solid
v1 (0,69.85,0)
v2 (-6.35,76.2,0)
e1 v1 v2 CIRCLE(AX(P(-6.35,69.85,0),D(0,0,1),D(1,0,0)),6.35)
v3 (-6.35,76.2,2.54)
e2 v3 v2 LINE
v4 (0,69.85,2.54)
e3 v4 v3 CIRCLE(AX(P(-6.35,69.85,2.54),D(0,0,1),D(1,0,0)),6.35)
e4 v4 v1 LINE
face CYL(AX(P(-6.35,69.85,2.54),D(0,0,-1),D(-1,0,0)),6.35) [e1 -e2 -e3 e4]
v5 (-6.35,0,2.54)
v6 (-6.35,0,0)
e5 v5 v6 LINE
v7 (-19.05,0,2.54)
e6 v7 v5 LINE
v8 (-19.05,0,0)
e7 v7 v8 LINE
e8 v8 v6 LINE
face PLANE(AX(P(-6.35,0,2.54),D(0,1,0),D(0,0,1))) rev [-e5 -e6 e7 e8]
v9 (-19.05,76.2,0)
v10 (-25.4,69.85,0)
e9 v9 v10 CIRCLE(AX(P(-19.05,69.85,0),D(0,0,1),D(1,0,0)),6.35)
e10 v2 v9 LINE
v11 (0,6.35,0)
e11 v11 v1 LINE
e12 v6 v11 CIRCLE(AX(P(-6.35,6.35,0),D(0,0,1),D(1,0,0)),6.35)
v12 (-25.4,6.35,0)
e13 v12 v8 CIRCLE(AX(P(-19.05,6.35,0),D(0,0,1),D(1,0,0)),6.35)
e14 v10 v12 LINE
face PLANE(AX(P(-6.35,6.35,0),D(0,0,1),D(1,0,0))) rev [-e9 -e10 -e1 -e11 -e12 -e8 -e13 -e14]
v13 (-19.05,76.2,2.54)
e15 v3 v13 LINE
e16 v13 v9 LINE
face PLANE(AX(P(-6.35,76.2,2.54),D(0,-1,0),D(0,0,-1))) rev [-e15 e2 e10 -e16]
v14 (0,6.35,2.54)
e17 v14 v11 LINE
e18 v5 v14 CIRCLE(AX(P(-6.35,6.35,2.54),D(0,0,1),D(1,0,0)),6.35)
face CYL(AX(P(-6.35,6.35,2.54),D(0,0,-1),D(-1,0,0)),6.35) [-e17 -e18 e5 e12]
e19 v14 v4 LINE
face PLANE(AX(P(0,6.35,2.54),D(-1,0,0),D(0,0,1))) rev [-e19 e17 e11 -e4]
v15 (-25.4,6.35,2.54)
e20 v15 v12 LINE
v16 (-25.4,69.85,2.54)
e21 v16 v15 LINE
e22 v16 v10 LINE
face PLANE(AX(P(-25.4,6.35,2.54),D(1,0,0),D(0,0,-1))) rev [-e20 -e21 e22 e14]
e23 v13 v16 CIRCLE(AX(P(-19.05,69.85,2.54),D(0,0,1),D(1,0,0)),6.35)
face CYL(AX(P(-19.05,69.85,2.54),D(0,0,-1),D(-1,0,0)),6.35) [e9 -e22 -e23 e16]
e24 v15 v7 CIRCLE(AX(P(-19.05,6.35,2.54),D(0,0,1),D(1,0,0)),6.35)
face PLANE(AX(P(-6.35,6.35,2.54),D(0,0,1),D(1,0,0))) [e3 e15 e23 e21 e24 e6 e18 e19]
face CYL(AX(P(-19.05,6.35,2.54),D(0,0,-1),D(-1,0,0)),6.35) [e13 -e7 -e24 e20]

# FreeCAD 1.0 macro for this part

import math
import FreeCAD as App
import Part
import Sketcher
from FreeCAD import Vector
Q = App.Units.Quantity

doc = App.newDocument("Part")
body = doc.addObject("PartDesign::Body", "Body")

# Sketch on XY plane
sketch1 = body.newObject("Sketcher::SketchObject", "Sketch")
sketch1.AttachmentSupport = (doc.getObject("XY_Plane"), [""])
sketch1.MapMode = "FlatFace"
sketch1.addGeometry(Part.LineSegment(Vector(0, 6.35, 0), Vector(0, 69.85, 0)), False)
sketch1.addGeometry(Part.ArcOfCircle(Part.Circle(Vector(-6.35, 69.85, 0), Vector(0, 0, 1), 6.35), math.radians(0), math.radians(90)), False)
sketch1.addGeometry(Part.LineSegment(Vector(-6.35, 76.2, 0), Vector(-19.05, 76.2, 0)), False)
sketch1.addGeometry(Part.ArcOfCircle(Part.Circle(Vector(-19.05, 69.85, 0), Vector(0, 0, 1), 6.35), math.radians(90), math.radians(180)), False)
sketch1.addGeometry(Part.LineSegment(Vector(-25.4, 69.85, 0), Vector(-25.4, 6.35, 0)), False)
sketch1.addGeometry(Part.ArcOfCircle(Part.Circle(Vector(-19.05, 6.35, 0), Vector(0, 0, 1), 6.35), math.radians(180), math.radians(270)), False)
sketch1.addGeometry(Part.LineSegment(Vector(-19.05, 0, 0), Vector(-6.35, 0, 0)), False)
sketch1.addGeometry(Part.ArcOfCircle(Part.Circle(Vector(-6.35, 6.35, 0), Vector(0, 0, 1), 6.35), math.radians(-90), math.radians(0)), False)
sketch1.addConstraint(Sketcher.Constraint("Tangent", 0, 2, 1, 1))
sketch1.addConstraint(Sketcher.Constraint("Tangent", 1, 2, 2, 1))
sketch1.addConstraint(Sketcher.Constraint("Tangent", 2, 2, 3, 1))
sketch1.addConstraint(Sketcher.Constraint("Tangent", 3, 2, 4, 1))
sketch1.addConstraint(Sketcher.Constraint("Tangent", 4, 2, 5, 1))
sketch1.addConstraint(Sketcher.Constraint("Tangent", 5, 2, 6, 1))
sketch1.addConstraint(Sketcher.Constraint("Tangent", 6, 2, 7, 1))
sketch1.addConstraint(Sketcher.Constraint("Tangent", 7, 2, 0, 1))
sketch1.addConstraint(Sketcher.Constraint("Vertical", 0))
sketch1.addConstraint(Sketcher.Constraint("Horizontal", 2))
sketch1.addConstraint(Sketcher.Constraint("Vertical", 4))
sketch1.addConstraint(Sketcher.Constraint("Horizontal", 6))
sketch1.addConstraint(Sketcher.Constraint("Equal", 1, 3))
sketch1.addConstraint(Sketcher.Constraint("Equal", 3, 5))
sketch1.addConstraint(Sketcher.Constraint("Equal", 5, 7))
sketch1.addConstraint(Sketcher.Constraint("PointOnObject", 0, 2, -2))
sketch1.addConstraint(Sketcher.Constraint("PointOnObject", 5, 2, -1))
sketch1.addConstraint(Sketcher.Constraint("Radius", 1, Q("0.25 in")))
sketch1.addConstraint(Sketcher.Constraint("DistanceX", 2, 2, 2, 1, Q("0.5 in")))
sketch1.addConstraint(Sketcher.Constraint("DistanceY", 0, 1, 0, 2, Q("2.5 in")))
pad1 = body.newObject("PartDesign::Pad", "Pad")
pad1.Profile = sketch1
pad1.Length = Q("0.1 in")

doc.recompute()
